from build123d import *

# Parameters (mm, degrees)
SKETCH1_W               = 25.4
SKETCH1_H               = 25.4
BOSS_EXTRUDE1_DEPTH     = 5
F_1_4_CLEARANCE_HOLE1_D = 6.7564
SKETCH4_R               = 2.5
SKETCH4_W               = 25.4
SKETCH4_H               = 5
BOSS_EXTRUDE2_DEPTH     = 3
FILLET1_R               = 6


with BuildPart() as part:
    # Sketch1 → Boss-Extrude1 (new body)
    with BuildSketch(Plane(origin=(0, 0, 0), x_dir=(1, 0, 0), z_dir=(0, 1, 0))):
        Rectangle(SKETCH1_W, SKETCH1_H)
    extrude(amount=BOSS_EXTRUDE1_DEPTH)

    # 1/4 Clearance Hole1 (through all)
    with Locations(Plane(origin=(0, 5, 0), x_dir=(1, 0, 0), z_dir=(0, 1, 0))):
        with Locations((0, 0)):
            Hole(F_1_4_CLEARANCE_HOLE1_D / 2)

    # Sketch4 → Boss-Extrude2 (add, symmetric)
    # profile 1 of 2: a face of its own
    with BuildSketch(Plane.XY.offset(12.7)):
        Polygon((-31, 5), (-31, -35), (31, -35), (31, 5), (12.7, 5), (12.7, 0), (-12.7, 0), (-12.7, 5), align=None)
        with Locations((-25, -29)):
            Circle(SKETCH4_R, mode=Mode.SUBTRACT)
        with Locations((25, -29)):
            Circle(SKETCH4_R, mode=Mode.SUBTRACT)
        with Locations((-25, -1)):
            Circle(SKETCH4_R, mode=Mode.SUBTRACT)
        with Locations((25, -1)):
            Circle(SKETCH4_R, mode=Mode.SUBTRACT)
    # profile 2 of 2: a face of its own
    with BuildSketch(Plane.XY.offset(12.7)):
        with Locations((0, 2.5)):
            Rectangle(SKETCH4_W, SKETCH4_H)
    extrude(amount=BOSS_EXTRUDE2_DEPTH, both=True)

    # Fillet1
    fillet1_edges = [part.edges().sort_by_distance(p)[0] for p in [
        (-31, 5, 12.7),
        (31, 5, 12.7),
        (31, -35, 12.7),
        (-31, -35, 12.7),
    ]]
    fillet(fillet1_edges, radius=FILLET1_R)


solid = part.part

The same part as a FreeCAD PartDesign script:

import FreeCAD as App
import Part
import Sketcher
Q = App.Units.Quantity


def edges_at(feature, points):
    """Names of the edges that pass closest to the given points."""
    edges = feature.Shape.Edges
    near = lambda p: min(range(len(edges)), key=lambda i: edges[i].distToShape(Part.Vertex(*p))[0])
    return sorted({f"Edge{near(p) + 1}" for p in points})

doc = App.newDocument("Part")
body = doc.addObject("PartDesign::Body", "Body")

sketch1 = body.newObject("Sketcher::SketchObject", "Sketch")
sketch1.AttachmentSupport = (doc.getObject("XZ_Plane"), [""])
sketch1.MapMode = "FlatFace"
sketch1.addGeometry(Part.LineSegment(App.Vector(-12.7, -12.7, 0), App.Vector(-12.7, 12.7, 0)), False)
sketch1.addGeometry(Part.LineSegment(App.Vector(-12.7, 12.7, 0), App.Vector(12.7, 12.7, 0)), False)
sketch1.addGeometry(Part.LineSegment(App.Vector(12.7, 12.7, 0), App.Vector(12.7, -12.7, 0)), False)
sketch1.addGeometry(Part.LineSegment(App.Vector(12.7, -12.7, 0), App.Vector(-12.7, -12.7, 0)), False)
sketch1.addConstraint(Sketcher.Constraint("Coincident", 0, 2, 1, 1))
sketch1.addConstraint(Sketcher.Constraint("Coincident", 1, 2, 2, 1))
sketch1.addConstraint(Sketcher.Constraint("Coincident", 2, 2, 3, 1))
sketch1.addConstraint(Sketcher.Constraint("Coincident", 3, 2, 0, 1))
sketch1.addConstraint(Sketcher.Constraint("Vertical", 0))
sketch1.addConstraint(Sketcher.Constraint("Horizontal", 1))
sketch1.addConstraint(Sketcher.Constraint("Vertical", 2))
sketch1.addConstraint(Sketcher.Constraint("Horizontal", 3))
sketch1.addConstraint(Sketcher.Constraint("Symmetric", 0, 2, 2, 2, -1, 1))
sketch1.addConstraint(Sketcher.Constraint("Equal", 3, 0))
sketch1.addConstraint(Sketcher.Constraint("DistanceX", 1, 1, 1, 2, Q("25.4 mm")))
pad1 = body.newObject("PartDesign::Pad", "Pad")
pad1.Profile = sketch1
pad1.Length = 5
pad1.Reversed = True

sketch2 = body.newObject("Sketcher::SketchObject", "Sketch001")
sketch2.AttachmentSupport = (doc.getObject("XZ_Plane"), [""])
sketch2.MapMode = "FlatFace"
sketch2.AttachmentOffset = App.Placement(App.Vector(0, 0, -5), App.Rotation())
sketch2.addGeometry(Part.Circle(App.Vector(0, 0, 0), App.Vector(0, 0, 1), 3.3782), False)
sketch2.addConstraint(Sketcher.Constraint("Coincident", 0, 3, -1, 1))
sketch2.addConstraint(Sketcher.Constraint("Diameter", 0, Q("6.7564 mm")))
doc.recompute()
hole = body.newObject("PartDesign::Hole", "Hole")
hole.Profile = sketch2
hole.ThreadType = "None"
hole.Diameter = 6.7564
hole.DepthType = "ThroughAll"
hole.Reversed = True

sketch3 = body.newObject("Sketcher::SketchObject", "Sketch002")
sketch3.AttachmentSupport = (doc.getObject("XY_Plane"), [""])
sketch3.MapMode = "FlatFace"
sketch3.AttachmentOffset = App.Placement(App.Vector(0, 0, 12.7), App.Rotation())
sketch3.addGeometry(Part.LineSegment(App.Vector(-31, 5, 0), App.Vector(-31, -35, 0)), False)
sketch3.addGeometry(Part.LineSegment(App.Vector(-31, -35, 0), App.Vector(31, -35, 0)), False)
sketch3.addGeometry(Part.LineSegment(App.Vector(31, -35, 0), App.Vector(31, 5, 0)), False)
sketch3.addGeometry(Part.LineSegment(App.Vector(31, 5, 0), App.Vector(-31, 5, 0)), False)
sketch3.addGeometry(Part.Circle(App.Vector(-25, -29, 0), App.Vector(0, 0, 1), 2.5), False)
sketch3.addGeometry(Part.Circle(App.Vector(25, -29, 0), App.Vector(0, 0, 1), 2.5), False)
sketch3.addGeometry(Part.Circle(App.Vector(-25, -1, 0), App.Vector(0, 0, 1), 2.5), False)
sketch3.addGeometry(Part.Circle(App.Vector(25, -1, 0), App.Vector(0, 0, 1), 2.5), False)
sketch3.addConstraint(Sketcher.Constraint("Coincident", 0, 2, 1, 1))
sketch3.addConstraint(Sketcher.Constraint("Coincident", 1, 2, 2, 1))
sketch3.addConstraint(Sketcher.Constraint("Coincident", 2, 2, 3, 1))
sketch3.addConstraint(Sketcher.Constraint("Coincident", 3, 2, 0, 1))
sketch3.addConstraint(Sketcher.Constraint("Vertical", 0))
sketch3.addConstraint(Sketcher.Constraint("Horizontal", 1))
sketch3.addConstraint(Sketcher.Constraint("Vertical", 2))
sketch3.addConstraint(Sketcher.Constraint("Horizontal", 3))
sketch3.addConstraint(Sketcher.Constraint("Equal", 4, 5))
sketch3.addConstraint(Sketcher.Constraint("Equal", 5, 6))
sketch3.addConstraint(Sketcher.Constraint("Equal", 6, 7))
sketch3.addConstraint(Sketcher.Constraint("Symmetric", 4, 3, 5, 3, -2))
sketch3.addConstraint(Sketcher.Constraint("Symmetric", 6, 3, 7, 3, -2))
sketch3.addConstraint(Sketcher.Constraint("Vertical", 4, 3, 6, 3))
sketch3.addConstraint(Sketcher.Constraint("Diameter", 4, Q("5 mm")))
sketch3.addConstraint(Sketcher.Constraint("DistanceX", 1, 1, 1, 2, Q("62 mm")))
sketch3.addConstraint(Sketcher.Constraint("DistanceY", 0, 2, 0, 1, Q("40 mm")))
sketch3.addConstraint(Sketcher.Constraint("DistanceX", 4, 3, -1, 1, Q("25 mm")))
sketch3.addConstraint(Sketcher.Constraint("DistanceY", 4, 3, -1, 1, Q("29 mm")))
sketch3.addConstraint(Sketcher.Constraint("DistanceY", 6, 3, -1, 1, Q("1 mm")))
sketch3.addConstraint(Sketcher.Constraint("DistanceX", 0, 2, -1, 1, Q("31 mm")))
sketch3.addConstraint(Sketcher.Constraint("DistanceY", 0, 2, -1, 1, Q("35 mm")))
pad2 = body.newObject("PartDesign::Pad", "Pad001")
pad2.Profile = sketch3
pad2.Length = 6
pad2.Midplane = True
doc.recompute()

fillet = body.newObject("PartDesign::Fillet", "Fillet")
fillet.Base = (pad2, edges_at(pad2, [
    (-31, 5, 12.7),
    (31, 5, 12.7),
    (31, -35, 12.7),
    (-31, -35, 12.7),
]))
fillet.Radius = 6

doc.recompute()
